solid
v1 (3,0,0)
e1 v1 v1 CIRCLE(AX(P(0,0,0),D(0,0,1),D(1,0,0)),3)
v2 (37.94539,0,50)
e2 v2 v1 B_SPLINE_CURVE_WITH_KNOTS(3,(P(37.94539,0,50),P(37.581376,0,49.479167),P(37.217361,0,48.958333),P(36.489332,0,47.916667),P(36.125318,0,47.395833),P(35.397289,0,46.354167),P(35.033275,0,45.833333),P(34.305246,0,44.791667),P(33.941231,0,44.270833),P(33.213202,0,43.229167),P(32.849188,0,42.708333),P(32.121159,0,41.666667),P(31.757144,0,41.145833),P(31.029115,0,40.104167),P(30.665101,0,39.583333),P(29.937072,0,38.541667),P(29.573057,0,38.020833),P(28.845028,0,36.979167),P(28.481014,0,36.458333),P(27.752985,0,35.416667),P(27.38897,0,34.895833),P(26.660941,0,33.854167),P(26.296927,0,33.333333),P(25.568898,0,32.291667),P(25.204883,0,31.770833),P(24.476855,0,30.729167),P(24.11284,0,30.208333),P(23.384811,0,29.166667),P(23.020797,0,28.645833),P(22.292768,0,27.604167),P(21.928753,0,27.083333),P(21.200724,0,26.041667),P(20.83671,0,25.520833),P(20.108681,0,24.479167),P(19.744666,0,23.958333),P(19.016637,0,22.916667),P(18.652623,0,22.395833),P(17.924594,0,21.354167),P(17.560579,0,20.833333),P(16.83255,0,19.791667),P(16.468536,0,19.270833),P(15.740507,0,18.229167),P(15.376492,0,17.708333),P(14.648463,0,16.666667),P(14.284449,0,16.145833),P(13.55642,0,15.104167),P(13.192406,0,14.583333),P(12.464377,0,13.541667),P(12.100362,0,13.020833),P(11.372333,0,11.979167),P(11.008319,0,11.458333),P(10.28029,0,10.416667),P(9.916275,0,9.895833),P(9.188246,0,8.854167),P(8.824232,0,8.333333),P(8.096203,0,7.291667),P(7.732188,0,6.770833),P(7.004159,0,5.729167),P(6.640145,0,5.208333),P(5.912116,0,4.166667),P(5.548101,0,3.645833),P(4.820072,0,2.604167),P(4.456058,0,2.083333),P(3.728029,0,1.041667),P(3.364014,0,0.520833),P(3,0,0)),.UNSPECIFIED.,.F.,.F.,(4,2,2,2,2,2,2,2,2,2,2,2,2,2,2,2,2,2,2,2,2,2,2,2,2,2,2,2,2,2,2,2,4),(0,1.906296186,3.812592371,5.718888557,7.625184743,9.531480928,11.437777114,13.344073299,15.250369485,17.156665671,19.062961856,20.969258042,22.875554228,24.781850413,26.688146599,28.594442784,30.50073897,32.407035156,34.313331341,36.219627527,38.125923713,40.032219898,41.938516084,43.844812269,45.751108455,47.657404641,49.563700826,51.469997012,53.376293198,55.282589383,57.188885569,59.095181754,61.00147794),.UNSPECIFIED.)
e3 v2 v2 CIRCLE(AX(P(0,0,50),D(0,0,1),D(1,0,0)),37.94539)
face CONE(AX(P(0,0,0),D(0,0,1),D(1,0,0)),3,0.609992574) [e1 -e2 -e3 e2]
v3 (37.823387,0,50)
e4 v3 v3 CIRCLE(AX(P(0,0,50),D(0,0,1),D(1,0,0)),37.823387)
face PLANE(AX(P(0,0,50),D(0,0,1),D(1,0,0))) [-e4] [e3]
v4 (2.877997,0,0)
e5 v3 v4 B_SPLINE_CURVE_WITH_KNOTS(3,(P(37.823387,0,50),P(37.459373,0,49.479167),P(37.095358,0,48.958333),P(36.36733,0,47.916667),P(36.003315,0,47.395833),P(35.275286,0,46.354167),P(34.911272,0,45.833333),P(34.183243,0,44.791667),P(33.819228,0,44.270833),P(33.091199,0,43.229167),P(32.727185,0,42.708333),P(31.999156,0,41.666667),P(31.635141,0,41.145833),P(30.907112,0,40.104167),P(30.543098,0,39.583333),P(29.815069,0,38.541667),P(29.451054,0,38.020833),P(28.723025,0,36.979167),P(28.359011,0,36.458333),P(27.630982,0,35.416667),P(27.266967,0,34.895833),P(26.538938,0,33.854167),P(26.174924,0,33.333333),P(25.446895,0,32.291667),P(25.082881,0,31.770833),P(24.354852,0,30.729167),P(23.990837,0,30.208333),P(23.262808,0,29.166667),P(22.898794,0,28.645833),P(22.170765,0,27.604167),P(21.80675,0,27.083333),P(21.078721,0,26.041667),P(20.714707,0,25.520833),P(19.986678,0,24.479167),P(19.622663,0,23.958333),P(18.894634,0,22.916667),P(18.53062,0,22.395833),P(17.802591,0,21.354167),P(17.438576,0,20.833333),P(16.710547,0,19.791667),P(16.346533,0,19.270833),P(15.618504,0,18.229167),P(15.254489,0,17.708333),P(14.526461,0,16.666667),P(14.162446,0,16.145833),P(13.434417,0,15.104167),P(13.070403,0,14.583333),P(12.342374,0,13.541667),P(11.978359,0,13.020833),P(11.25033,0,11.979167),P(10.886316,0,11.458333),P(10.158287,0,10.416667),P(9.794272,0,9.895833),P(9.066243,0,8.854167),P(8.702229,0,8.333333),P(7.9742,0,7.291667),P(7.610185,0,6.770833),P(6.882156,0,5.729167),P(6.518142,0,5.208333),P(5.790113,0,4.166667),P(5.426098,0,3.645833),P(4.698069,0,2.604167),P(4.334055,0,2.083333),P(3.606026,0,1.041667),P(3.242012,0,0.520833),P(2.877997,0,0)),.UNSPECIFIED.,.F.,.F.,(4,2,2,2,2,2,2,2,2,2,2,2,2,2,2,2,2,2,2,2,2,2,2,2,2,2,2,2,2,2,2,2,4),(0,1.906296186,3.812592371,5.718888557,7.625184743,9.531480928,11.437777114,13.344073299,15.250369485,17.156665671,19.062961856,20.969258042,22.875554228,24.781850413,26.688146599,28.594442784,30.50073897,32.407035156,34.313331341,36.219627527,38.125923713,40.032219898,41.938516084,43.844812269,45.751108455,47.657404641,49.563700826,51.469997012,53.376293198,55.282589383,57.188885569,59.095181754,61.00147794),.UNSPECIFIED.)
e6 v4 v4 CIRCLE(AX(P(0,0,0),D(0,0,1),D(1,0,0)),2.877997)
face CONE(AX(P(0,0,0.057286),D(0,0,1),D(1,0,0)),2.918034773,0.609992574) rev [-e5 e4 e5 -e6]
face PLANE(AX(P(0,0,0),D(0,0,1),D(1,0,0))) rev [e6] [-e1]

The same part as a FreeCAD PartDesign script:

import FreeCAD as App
import Part
import Sketcher

V = App.Vector
Q = App.Units.Quantity


def faces_at(feature, points):
    """Names of the faces that lie closest to the given points."""
    faces = feature.Shape.Faces
    near = lambda p: min(range(len(faces)), key=lambda i: faces[i].distToShape(Part.Vertex(*p))[0])
    return sorted({f"Face{near(p) + 1}" for p in points})

doc = App.newDocument("Part")
body = doc.addObject("PartDesign::Body", "Body")

sketch1 = body.newObject("Sketcher::SketchObject", "Sketch")
sketch1.AttachmentSupport = (doc.getObject("XY_Plane"), [""])
sketch1.MapMode = "FlatFace"
sketch1.addGeometry(Part.Circle(V(0, 0, 0), V(0, 0, 1), 3), False)
sketch1.addConstraint(Sketcher.Constraint("Coincident", 0, 3, -1, 1))
sketch1.addConstraint(Sketcher.Constraint("Diameter", 0, Q("6 mm")))
pad1 = body.newObject("PartDesign::Pad", "Pad")
pad1.Profile = sketch1
pad1.Length = 50
doc.recompute()

draft = body.newObject("PartDesign::Draft", "Draft")
draft.Base = (pad1, faces_at(pad1, [(-3, 0, 25)]))
draft.NeutralPlane = (doc.getObject("XY_Plane"), [""])
draft.Angle = 34.95
draft.Reversed = True
doc.recompute()

thickness = body.newObject("PartDesign::Thickness", "Thickness")
thickness.Base = (draft, faces_at(draft, [(0, 0, 50), (0, 0, 0)]))
thickness.Value = 0.1
thickness.Reversed = True
thickness.Join = "Intersection"

doc.recompute()
